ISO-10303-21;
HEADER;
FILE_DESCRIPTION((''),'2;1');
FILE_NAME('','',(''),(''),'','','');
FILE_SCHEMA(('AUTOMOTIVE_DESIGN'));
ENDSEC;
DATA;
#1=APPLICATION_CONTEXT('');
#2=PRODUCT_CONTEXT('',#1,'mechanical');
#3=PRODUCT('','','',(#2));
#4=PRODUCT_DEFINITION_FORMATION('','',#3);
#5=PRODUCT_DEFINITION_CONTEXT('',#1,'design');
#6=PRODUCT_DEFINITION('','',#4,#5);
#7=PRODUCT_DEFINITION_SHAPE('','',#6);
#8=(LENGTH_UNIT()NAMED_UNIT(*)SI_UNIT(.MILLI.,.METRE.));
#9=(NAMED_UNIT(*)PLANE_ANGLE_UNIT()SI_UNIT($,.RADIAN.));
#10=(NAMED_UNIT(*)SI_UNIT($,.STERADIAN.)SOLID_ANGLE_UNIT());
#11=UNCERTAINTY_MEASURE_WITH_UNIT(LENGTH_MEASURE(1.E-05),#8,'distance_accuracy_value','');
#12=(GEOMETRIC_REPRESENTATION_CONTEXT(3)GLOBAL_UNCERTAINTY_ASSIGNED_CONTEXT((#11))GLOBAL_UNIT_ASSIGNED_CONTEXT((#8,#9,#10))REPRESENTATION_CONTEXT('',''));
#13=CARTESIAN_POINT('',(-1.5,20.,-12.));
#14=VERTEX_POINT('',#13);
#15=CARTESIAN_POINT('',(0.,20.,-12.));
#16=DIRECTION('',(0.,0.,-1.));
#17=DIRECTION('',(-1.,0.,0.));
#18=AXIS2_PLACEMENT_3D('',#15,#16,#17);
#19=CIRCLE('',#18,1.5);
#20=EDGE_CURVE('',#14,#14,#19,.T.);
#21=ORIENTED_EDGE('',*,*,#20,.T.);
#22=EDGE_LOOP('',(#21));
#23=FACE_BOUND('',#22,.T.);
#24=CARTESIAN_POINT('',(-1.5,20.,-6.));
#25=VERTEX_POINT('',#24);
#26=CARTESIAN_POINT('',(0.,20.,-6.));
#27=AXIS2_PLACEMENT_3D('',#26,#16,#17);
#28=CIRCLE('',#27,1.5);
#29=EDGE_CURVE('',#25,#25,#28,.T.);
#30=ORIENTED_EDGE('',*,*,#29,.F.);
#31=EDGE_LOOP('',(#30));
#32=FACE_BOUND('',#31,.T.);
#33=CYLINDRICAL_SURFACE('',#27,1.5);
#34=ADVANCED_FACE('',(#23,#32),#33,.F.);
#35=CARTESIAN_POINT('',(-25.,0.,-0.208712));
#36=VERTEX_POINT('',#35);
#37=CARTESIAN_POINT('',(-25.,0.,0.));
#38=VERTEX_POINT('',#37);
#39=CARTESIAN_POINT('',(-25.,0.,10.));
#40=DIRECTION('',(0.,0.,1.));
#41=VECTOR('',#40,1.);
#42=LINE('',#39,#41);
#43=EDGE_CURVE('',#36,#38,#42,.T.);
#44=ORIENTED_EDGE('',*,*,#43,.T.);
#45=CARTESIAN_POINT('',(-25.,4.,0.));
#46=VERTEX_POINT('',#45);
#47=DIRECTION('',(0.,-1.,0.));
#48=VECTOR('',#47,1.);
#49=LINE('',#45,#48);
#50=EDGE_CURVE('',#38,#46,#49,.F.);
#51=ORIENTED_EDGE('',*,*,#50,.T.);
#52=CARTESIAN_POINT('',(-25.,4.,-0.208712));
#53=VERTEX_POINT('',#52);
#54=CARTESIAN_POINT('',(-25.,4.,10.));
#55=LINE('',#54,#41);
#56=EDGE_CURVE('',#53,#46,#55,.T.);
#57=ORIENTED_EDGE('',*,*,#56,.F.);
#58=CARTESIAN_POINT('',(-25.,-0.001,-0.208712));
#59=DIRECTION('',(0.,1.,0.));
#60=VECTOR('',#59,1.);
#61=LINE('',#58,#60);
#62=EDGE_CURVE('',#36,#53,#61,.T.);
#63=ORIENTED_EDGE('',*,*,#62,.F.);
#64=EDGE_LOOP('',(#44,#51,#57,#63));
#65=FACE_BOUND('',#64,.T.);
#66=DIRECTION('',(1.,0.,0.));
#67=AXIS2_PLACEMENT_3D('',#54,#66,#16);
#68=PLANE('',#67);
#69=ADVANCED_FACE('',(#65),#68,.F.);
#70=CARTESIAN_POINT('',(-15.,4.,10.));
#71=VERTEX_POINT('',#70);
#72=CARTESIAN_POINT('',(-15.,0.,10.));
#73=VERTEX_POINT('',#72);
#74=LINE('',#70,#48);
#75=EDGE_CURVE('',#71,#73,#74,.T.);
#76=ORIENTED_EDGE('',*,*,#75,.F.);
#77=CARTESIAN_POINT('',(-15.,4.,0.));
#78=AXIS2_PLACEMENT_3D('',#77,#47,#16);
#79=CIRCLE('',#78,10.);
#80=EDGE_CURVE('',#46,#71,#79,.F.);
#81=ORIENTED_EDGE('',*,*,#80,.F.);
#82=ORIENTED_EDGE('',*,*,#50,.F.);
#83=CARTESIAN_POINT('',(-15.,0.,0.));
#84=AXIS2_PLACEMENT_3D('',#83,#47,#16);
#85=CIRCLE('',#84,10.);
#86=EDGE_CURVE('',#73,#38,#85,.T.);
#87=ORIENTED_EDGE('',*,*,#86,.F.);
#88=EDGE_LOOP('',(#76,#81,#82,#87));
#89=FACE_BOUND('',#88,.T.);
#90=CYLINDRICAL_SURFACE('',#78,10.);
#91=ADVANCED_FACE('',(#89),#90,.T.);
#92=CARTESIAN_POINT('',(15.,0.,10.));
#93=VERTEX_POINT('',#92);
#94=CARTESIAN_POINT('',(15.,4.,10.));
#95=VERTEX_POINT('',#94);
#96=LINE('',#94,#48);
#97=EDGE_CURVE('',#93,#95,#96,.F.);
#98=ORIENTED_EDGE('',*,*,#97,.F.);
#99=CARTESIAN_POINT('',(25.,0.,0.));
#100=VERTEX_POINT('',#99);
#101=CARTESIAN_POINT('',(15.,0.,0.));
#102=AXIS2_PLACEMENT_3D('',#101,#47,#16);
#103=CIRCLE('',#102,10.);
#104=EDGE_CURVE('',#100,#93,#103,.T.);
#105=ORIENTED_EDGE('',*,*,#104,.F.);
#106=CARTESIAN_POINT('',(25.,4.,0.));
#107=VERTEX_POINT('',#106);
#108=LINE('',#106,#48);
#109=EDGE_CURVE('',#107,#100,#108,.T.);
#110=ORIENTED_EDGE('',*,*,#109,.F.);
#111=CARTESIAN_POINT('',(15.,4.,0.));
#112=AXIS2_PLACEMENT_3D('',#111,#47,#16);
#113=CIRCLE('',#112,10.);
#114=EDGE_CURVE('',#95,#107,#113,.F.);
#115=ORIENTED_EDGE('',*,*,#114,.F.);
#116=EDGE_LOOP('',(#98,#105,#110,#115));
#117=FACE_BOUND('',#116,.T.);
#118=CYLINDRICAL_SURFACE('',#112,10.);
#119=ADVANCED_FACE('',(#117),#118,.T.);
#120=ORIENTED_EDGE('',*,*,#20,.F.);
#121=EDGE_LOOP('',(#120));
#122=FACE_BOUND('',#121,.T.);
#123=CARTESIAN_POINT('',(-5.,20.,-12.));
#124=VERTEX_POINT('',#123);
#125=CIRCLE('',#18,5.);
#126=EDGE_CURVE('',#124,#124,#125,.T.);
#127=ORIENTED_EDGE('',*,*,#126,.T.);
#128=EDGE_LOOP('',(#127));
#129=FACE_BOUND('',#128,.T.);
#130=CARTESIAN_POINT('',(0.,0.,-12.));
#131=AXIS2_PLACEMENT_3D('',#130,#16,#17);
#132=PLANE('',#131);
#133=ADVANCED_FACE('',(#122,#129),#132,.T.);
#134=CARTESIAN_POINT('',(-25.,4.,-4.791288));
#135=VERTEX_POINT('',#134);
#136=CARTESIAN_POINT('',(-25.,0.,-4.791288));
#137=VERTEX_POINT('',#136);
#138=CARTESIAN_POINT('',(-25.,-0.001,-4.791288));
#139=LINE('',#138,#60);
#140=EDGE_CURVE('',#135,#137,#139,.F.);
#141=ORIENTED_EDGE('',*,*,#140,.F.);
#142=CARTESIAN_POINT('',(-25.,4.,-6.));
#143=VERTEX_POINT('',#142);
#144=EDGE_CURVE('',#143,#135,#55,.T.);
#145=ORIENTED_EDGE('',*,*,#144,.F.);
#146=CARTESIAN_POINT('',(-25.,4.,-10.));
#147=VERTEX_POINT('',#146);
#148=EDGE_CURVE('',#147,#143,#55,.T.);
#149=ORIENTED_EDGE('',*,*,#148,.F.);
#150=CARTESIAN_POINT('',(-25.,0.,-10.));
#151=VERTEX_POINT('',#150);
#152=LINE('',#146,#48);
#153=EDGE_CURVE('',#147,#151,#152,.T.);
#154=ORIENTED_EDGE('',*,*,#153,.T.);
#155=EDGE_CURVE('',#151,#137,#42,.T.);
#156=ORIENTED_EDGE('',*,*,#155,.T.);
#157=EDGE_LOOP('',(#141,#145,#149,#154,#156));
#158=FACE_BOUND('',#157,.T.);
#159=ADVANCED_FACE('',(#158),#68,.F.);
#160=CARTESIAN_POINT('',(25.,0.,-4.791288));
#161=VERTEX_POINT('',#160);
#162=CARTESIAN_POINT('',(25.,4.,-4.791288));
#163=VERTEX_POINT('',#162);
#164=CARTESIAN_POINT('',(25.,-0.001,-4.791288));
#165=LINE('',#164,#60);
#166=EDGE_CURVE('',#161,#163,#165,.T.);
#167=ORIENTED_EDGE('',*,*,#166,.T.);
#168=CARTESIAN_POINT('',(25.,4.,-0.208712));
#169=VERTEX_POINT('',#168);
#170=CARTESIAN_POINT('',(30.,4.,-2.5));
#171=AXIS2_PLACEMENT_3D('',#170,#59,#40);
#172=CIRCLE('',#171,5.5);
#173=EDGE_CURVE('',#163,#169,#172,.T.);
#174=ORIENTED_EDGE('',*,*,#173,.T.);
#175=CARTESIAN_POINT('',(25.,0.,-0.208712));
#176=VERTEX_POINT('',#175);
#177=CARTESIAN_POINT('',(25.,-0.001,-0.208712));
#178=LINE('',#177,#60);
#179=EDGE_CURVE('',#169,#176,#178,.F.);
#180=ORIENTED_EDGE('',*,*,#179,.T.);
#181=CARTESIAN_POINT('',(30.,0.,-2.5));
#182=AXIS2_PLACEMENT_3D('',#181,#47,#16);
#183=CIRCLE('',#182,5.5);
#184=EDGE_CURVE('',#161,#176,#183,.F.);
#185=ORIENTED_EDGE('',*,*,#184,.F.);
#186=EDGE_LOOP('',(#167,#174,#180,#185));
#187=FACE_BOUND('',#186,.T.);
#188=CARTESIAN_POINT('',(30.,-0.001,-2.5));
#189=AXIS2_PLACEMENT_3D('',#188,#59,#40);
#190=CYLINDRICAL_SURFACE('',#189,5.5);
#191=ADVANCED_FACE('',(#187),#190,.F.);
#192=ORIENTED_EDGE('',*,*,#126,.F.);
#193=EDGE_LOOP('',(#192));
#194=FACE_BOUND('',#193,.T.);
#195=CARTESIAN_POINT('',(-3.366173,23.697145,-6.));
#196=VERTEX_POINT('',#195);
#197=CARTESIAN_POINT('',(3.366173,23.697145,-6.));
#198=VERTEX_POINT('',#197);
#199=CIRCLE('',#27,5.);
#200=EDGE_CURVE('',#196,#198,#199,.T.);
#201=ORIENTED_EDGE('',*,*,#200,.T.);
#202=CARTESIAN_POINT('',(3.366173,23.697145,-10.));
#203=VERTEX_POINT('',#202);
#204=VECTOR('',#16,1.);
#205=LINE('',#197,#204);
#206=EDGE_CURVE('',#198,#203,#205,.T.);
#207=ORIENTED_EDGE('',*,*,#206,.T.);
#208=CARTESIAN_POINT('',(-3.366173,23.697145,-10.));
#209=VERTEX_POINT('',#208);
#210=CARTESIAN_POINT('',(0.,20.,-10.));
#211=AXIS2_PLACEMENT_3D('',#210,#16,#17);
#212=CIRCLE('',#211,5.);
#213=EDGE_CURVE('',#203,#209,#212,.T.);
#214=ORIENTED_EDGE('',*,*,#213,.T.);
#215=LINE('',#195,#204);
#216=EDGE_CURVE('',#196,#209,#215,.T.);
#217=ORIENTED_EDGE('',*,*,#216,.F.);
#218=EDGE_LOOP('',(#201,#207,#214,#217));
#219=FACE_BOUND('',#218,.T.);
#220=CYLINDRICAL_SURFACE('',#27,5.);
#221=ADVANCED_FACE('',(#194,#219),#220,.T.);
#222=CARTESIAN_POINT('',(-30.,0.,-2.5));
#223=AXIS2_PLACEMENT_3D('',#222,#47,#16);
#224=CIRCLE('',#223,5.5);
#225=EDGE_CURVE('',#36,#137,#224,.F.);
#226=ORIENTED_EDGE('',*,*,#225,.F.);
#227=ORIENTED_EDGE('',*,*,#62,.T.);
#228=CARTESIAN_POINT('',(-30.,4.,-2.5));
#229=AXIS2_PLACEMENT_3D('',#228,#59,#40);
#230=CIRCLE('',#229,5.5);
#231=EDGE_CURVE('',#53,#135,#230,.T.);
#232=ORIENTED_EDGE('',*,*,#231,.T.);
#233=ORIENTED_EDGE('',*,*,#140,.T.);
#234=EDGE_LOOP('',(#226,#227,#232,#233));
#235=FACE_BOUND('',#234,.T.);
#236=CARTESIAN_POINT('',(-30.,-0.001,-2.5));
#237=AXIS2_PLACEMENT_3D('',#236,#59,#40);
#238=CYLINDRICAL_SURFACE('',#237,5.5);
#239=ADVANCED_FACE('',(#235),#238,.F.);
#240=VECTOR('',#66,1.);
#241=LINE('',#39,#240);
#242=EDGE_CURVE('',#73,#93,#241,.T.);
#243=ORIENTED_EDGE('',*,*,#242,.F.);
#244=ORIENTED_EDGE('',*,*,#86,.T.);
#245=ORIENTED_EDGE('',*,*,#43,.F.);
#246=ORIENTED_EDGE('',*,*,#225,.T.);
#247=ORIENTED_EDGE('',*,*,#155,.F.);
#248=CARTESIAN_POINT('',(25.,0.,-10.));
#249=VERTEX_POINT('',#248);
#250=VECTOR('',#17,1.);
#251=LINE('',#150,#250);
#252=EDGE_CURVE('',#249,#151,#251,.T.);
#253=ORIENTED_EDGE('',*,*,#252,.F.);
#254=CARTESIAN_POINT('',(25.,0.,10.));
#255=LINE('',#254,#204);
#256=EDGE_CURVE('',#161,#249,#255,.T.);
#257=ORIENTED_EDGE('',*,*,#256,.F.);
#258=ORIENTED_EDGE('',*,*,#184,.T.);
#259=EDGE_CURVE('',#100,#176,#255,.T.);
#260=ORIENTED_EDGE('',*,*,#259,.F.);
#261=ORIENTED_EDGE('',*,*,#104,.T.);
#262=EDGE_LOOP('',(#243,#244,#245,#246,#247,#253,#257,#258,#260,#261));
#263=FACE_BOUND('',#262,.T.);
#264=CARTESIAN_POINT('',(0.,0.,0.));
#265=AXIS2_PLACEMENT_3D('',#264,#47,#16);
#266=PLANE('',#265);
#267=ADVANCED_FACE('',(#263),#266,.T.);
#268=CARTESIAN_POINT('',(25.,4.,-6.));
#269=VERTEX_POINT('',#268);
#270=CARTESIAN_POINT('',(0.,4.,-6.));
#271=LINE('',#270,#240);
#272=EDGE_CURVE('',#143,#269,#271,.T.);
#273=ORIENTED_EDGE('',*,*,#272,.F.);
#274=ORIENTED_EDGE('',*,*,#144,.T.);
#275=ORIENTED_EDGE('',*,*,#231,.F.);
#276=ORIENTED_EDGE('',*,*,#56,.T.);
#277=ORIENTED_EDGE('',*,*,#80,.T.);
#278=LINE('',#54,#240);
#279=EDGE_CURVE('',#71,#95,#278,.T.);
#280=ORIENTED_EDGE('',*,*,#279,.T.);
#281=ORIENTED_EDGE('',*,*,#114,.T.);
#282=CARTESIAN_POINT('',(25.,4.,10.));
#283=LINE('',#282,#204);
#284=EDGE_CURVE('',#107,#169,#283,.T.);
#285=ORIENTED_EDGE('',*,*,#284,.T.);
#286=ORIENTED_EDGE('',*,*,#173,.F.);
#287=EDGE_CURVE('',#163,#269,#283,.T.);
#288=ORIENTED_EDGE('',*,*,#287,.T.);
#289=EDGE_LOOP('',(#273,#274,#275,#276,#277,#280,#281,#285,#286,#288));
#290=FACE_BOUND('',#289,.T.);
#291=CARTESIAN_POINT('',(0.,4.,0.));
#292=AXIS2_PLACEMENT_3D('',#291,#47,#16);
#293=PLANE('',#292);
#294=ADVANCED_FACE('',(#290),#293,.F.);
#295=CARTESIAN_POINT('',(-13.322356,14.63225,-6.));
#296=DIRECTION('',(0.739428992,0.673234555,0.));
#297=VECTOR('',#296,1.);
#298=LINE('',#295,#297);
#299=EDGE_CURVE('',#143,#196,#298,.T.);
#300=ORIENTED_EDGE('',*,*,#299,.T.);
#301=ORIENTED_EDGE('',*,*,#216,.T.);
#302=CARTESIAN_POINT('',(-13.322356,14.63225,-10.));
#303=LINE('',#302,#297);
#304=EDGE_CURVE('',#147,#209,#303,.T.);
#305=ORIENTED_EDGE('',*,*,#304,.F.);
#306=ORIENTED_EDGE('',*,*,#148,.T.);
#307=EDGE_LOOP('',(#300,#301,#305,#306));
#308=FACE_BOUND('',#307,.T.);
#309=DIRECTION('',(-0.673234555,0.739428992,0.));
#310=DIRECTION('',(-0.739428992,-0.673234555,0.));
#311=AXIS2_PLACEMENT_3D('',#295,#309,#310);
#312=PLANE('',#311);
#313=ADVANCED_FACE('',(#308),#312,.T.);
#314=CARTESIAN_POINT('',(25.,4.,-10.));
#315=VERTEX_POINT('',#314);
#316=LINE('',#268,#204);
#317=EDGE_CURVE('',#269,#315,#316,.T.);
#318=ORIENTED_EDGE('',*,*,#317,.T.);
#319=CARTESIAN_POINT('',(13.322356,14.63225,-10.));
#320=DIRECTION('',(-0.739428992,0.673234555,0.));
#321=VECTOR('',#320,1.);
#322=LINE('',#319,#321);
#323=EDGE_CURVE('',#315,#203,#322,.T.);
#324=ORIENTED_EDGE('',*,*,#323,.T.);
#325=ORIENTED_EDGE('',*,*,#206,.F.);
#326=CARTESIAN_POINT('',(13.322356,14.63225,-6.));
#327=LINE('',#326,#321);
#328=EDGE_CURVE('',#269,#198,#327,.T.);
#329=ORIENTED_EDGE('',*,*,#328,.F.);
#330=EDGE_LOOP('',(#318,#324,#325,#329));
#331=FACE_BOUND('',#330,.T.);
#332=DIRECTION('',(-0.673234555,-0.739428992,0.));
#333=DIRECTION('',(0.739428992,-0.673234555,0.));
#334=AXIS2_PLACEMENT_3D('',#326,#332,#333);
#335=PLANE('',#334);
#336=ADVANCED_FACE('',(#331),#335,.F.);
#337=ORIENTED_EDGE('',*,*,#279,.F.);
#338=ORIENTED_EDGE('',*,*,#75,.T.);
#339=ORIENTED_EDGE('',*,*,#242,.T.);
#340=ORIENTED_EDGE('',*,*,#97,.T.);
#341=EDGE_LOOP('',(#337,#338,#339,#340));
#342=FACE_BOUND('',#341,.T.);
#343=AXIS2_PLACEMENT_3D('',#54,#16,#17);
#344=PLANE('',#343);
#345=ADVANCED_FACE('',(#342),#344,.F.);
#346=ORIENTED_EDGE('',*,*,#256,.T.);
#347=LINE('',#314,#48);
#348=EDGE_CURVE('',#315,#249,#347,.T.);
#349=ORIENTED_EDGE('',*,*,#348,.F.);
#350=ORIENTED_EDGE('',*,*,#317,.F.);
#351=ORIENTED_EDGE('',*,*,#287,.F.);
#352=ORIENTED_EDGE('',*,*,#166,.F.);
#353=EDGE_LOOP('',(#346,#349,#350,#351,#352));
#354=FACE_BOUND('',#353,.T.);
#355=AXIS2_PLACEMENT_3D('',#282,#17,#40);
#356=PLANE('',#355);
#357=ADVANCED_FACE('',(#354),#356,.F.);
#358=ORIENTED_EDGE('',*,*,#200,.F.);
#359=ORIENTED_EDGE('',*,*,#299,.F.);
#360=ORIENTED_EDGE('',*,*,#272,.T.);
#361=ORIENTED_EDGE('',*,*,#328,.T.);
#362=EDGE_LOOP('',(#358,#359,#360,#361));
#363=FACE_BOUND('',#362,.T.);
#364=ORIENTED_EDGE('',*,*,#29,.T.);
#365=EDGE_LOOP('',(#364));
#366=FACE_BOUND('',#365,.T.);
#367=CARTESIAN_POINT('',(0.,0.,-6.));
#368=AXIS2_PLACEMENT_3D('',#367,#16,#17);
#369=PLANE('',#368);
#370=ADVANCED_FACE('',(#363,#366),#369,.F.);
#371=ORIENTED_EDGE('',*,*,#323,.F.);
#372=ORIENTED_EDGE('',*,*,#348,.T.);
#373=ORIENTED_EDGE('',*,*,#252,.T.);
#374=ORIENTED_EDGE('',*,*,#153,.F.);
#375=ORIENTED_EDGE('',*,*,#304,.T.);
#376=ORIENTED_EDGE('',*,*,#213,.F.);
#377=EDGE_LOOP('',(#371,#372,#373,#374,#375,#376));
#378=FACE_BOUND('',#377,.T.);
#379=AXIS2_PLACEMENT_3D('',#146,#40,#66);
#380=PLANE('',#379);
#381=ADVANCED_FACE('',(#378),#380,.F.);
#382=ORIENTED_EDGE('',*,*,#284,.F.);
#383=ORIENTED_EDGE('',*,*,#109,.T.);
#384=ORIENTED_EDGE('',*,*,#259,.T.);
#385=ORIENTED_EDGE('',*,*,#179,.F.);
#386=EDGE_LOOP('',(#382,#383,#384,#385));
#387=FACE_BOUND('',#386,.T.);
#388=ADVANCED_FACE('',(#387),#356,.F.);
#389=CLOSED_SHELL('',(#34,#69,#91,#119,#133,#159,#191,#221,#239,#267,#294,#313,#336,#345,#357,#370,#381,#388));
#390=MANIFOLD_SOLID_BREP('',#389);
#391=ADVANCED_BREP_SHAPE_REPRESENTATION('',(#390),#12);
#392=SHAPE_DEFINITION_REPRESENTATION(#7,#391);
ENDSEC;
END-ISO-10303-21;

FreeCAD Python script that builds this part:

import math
import FreeCAD as App
import Part
import Sketcher

V = App.Vector


def edges_at(feature, points):
    """Names of the edges that pass closest to the given points."""
    edges = feature.Shape.Edges
    near = lambda p: min(range(len(edges)), key=lambda i: edges[i].distToShape(Part.Vertex(*p))[0])
    return sorted({f"Edge{near(p) + 1}" for p in points})

doc = App.newDocument("Part")
body = doc.addObject("PartDesign::Body", "Body")

sketch1 = body.newObject("Sketcher::SketchObject", "Sketch")
sketch1.AttachmentSupport = (doc.getObject("XZ_Plane"), [""])
sketch1.MapMode = "FlatFace"
sketch1.addGeometry(Part.LineSegment(V(-25, -10, 0), V(-25, 10, 0)), False)
sketch1.addGeometry(Part.LineSegment(V(-25, 10, 0), V(25, 10, 0)), False)
sketch1.addGeometry(Part.LineSegment(V(25, 10, 0), V(25, -10, 0)), False)
sketch1.addGeometry(Part.LineSegment(V(25, -10, 0), V(-25, -10, 0)), False)
sketch1.addConstraint(Sketcher.Constraint("Coincident", 0, 2, 1, 1))
sketch1.addConstraint(Sketcher.Constraint("Coincident", 1, 2, 2, 1))
sketch1.addConstraint(Sketcher.Constraint("Coincident", 2, 2, 3, 1))
sketch1.addConstraint(Sketcher.Constraint("Coincident", 3, 2, 0, 1))
sketch1.addConstraint(Sketcher.Constraint("Vertical", 0))
sketch1.addConstraint(Sketcher.Constraint("Horizontal", 1))
sketch1.addConstraint(Sketcher.Constraint("Vertical", 2))
sketch1.addConstraint(Sketcher.Constraint("Horizontal", 3))
sketch1.addConstraint(Sketcher.Constraint("Symmetric", 0, 2, 2, 2, -1, 1))
sketch1.addConstraint(Sketcher.Constraint("DistanceX", 1, 1, 1, 2, 50.0))
sketch1.addConstraint(Sketcher.Constraint("DistanceY", 0, 1, 0, 2, 20.0))
pad1 = body.newObject("PartDesign::Pad", "Pad")
pad1.Profile = sketch1
pad1.Length = 4
pad1.Reversed = True

sketch2 = body.newObject("Sketcher::SketchObject", "Sketch001")
sketch2.AttachmentSupport = (doc.getObject("XY_Plane"), [""])
sketch2.MapMode = "FlatFace"
sketch2.AttachmentOffset = App.Placement(V(0, 0, -10), App.Rotation())
sketch2.addGeometry(Part.LineSegment(V(3.366173, 23.697145, 0), V(25, 4, 0)), False)
sketch2.addGeometry(Part.LineSegment(V(25, 4, 0), V(-25, 4, 0)), False)
sketch2.addGeometry(Part.LineSegment(V(-25, 4, 0), V(-3.366173, 23.697145, 0)), False)
sketch2.addGeometry(Part.ArcOfCircle(Part.Circle(V(0, 20, 0), V(0, 0, 1), 5), math.radians(47.682797), math.radians(132.317203)), False)
sketch2.addGeometry(Part.Circle(V(0, 20, 0), V(0, 0, 1), 1.5), False)
sketch2.addConstraint(Sketcher.Constraint("Coincident", 0, 2, 1, 1))
sketch2.addConstraint(Sketcher.Constraint("Coincident", 1, 2, 2, 1))
sketch2.addConstraint(Sketcher.Constraint("Tangent", 2, 2, 3, 2))
sketch2.addConstraint(Sketcher.Constraint("Tangent", 3, 1, 0, 1))
sketch2.addConstraint(Sketcher.Constraint("Horizontal", 1))
sketch2.addConstraint(Sketcher.Constraint("Coincident", 4, 3, 3, 3))
sketch2.addConstraint(Sketcher.Constraint("Symmetric", 2, 2, 3, 1, -2))
sketch2.addConstraint(Sketcher.Constraint("Diameter", 4, 3.0))
sketch2.addConstraint(Sketcher.Constraint("Radius", 3, 5.0))
sketch2.addConstraint(Sketcher.Constraint("DistanceX", 1, 2, 1, 1, 50.0))
sketch2.addConstraint(Sketcher.Constraint("DistanceY", -1, 1, 3, 3, 20.0))
sketch2.addConstraint(Sketcher.Constraint("DistanceY", -1, 1, 0, 2, 4.0))
pad2 = body.newObject("PartDesign::Pad", "Pad001")
pad2.Profile = sketch2
pad2.Length = 4

sketch3 = body.newObject("Sketcher::SketchObject", "Sketch002")
sketch3.AttachmentSupport = (doc.getObject("XY_Plane"), [""])
sketch3.MapMode = "FlatFace"
sketch3.AttachmentOffset = App.Placement(V(0, 0, -12), App.Rotation())
sketch3.addGeometry(Part.Circle(V(0, 20, 0), V(0, 0, 1), 5), False)
sketch3.addGeometry(Part.Circle(V(0, 20, 0), V(0, 0, 1), 1.5), False)
sketch3.addConstraint(Sketcher.Constraint("Coincident", 1, 3, 0, 3))
sketch3.addConstraint(Sketcher.Constraint("PointOnObject", 0, 3, -2))
sketch3.addConstraint(Sketcher.Constraint("Diameter", 0, 10.0))
sketch3.addConstraint(Sketcher.Constraint("Diameter", 1, 3.0))
sketch3.addConstraint(Sketcher.Constraint("DistanceY", -1, 1, 0, 3, 20.0))
pad3 = body.newObject("PartDesign::Pad", "Pad002")
pad3.Profile = sketch3
pad3.Length = 2

sketch4 = body.newObject("Sketcher::SketchObject", "Sketch003")
sketch4.AttachmentSupport = (doc.getObject("XZ_Plane"), [""])
sketch4.MapMode = "FlatFace"
sketch4.AttachmentOffset = App.Placement(V(0, 0, -4), App.Rotation())
sketch4.addGeometry(Part.Circle(V(-30, -2.5, 0), V(0, 0, 1), 5.5), False)
sketch4.addConstraint(Sketcher.Constraint("Diameter", 0, 11.0))
sketch4.addConstraint(Sketcher.Constraint("DistanceX", 0, 3, -1, 1, 30.0))
sketch4.addConstraint(Sketcher.Constraint("DistanceY", 0, 3, -1, 1, 2.5))
pocket1 = body.newObject("PartDesign::Pocket", "Pocket")
pocket1.Profile = sketch4
pocket1.Length = 4
pocket1.Reversed = True

sketch5 = body.newObject("Sketcher::SketchObject", "Sketch004")
sketch5.AttachmentSupport = (doc.getObject("XZ_Plane"), [""])
sketch5.MapMode = "FlatFace"
sketch5.AttachmentOffset = App.Placement(V(0, 0, -4), App.Rotation())
sketch5.addGeometry(Part.Circle(V(30, -2.5, 0), V(0, 0, 1), 5.5), False)
sketch5.addConstraint(Sketcher.Constraint("Diameter", 0, 11.0))
sketch5.addConstraint(Sketcher.Constraint("DistanceX", -1, 1, 0, 3, 30.0))
sketch5.addConstraint(Sketcher.Constraint("DistanceY", 0, 3, -1, 1, 2.5))
pocket2 = body.newObject("PartDesign::Pocket", "Pocket001")
pocket2.Profile = sketch5
pocket2.Length = 4
pocket2.Reversed = True
doc.recompute()

fillet = body.newObject("PartDesign::Fillet", "Fillet")
fillet.Base = (pocket2, edges_at(pocket2, [(25, 2, 10), (-25, 2, 10)]))
fillet.Radius = 10

doc.recompute()
